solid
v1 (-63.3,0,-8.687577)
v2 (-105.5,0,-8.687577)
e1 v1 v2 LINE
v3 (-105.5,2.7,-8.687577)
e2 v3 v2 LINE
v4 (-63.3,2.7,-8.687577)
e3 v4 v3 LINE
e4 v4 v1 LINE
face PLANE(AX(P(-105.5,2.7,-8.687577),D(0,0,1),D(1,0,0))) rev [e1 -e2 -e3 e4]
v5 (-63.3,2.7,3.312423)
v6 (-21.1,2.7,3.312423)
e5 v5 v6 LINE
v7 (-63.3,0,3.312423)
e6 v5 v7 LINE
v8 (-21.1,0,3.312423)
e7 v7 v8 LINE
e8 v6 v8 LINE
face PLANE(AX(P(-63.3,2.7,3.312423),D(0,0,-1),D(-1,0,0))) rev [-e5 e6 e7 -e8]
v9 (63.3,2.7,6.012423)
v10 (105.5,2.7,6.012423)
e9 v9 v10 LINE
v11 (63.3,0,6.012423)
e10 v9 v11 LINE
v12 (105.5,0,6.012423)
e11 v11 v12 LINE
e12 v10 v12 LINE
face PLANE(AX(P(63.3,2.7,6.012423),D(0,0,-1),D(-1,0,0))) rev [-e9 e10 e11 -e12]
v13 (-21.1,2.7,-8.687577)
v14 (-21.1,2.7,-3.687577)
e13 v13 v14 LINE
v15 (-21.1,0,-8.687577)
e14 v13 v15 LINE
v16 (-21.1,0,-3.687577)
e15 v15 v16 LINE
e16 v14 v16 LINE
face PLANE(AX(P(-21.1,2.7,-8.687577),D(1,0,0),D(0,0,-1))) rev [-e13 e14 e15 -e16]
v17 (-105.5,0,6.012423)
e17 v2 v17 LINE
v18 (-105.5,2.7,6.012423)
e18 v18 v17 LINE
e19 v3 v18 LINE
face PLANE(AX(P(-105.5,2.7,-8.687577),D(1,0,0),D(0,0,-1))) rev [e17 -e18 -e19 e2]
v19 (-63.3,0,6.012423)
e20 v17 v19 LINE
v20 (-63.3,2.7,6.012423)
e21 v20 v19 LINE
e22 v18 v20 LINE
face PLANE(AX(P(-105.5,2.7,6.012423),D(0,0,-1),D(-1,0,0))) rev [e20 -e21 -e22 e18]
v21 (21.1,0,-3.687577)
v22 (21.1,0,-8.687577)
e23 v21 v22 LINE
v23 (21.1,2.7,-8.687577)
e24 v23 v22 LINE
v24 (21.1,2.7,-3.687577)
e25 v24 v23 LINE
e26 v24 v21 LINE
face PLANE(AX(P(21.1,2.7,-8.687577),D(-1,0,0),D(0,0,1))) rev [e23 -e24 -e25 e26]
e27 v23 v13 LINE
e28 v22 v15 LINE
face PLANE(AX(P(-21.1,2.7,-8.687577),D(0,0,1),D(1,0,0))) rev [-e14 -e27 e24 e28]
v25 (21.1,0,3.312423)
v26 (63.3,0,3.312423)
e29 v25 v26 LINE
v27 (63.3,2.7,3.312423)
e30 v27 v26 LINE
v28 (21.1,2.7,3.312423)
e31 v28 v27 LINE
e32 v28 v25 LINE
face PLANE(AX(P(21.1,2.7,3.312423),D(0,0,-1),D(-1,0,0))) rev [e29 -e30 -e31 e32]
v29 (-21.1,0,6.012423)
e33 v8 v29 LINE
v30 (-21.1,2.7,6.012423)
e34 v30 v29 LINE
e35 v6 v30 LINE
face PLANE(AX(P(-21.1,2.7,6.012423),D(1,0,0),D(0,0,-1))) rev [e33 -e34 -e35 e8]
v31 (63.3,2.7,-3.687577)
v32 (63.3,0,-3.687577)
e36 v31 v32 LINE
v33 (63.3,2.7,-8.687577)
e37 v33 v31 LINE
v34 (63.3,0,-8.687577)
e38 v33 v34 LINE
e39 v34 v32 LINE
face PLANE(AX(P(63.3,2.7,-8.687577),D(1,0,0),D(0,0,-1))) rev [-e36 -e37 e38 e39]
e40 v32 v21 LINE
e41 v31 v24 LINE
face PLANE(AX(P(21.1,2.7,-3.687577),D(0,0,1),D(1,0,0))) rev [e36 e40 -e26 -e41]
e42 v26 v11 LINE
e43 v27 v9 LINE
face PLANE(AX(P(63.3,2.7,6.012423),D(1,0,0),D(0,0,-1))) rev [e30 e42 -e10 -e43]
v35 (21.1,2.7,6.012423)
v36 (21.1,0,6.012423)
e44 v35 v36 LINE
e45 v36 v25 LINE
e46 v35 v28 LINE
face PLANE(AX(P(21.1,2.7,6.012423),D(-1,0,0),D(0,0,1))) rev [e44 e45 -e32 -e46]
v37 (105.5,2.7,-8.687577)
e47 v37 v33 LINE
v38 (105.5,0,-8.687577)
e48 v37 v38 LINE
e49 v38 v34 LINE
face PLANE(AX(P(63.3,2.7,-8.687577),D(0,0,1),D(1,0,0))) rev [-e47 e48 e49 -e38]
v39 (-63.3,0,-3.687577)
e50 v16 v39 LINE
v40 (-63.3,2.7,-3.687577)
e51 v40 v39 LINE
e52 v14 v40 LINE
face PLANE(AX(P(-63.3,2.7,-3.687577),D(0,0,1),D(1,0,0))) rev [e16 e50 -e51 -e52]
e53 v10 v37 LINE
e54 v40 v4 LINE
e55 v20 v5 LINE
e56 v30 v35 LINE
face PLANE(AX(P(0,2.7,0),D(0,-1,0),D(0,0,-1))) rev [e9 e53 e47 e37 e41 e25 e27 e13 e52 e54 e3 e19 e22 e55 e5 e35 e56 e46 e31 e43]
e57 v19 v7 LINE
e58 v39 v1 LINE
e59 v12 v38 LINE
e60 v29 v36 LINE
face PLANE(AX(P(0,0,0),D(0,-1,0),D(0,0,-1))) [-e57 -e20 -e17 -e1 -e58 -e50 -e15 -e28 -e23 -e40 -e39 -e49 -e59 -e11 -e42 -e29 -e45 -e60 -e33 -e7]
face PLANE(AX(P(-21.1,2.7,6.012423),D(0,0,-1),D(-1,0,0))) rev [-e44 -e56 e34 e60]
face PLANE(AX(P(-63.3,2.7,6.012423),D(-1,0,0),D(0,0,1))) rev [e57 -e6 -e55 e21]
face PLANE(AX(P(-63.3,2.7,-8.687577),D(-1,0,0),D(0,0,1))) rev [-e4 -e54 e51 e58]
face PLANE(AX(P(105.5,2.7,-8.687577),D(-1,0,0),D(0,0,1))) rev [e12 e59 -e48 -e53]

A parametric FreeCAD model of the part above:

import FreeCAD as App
import Part
import Sketcher
from FreeCAD import Vector
Q = App.Units.Quantity

doc = App.newDocument("Part")
body = doc.addObject("PartDesign::Body", "Body")

sketch1 = doc.addObject("Sketcher::SketchObject", "Sketch")
body.addObject(sketch1)
sketch1.AttachmentSupport = (doc.XZ_Plane, [""])
sketch1.MapMode = "FlatFace"
sketch1.addGeometry(Part.LineSegment(Vector(-21.1, -3.7, 0), Vector(-63.3, -3.7, 0)), False)
sketch1.addGeometry(Part.LineSegment(Vector(-63.3, -3.7, 0), Vector(-63.3, -8.7, 0)), False)
sketch1.addGeometry(Part.LineSegment(Vector(-63.3, -8.7, 0), Vector(-105.5, -8.7, 0)), False)
sketch1.addGeometry(Part.LineSegment(Vector(-105.5, -8.7, 0), Vector(-105.5, 6, 0)), False)
sketch1.addGeometry(Part.LineSegment(Vector(-105.5, 6, 0), Vector(-63.3, 6, 0)), False)
sketch1.addGeometry(Part.LineSegment(Vector(-63.3, 6, 0), Vector(-63.3, 3.3, 0)), False)
sketch1.addGeometry(Part.LineSegment(Vector(-63.3, 3.3, 0), Vector(-21.1, 3.3, 0)), False)
sketch1.addGeometry(Part.LineSegment(Vector(-21.1, 3.3, 0), Vector(-21.1, 6, 0)), False)
sketch1.addGeometry(Part.LineSegment(Vector(-21.1, 6, 0), Vector(21.1, 6, 0)), False)
sketch1.addGeometry(Part.LineSegment(Vector(21.1, 6, 0), Vector(21.1, 3.3, 0)), False)
sketch1.addGeometry(Part.LineSegment(Vector(21.1, 3.3, 0), Vector(63.3, 3.3, 0)), False)
sketch1.addGeometry(Part.LineSegment(Vector(63.3, 3.3, 0), Vector(63.3, 6, 0)), False)
sketch1.addGeometry(Part.LineSegment(Vector(63.3, 6, 0), Vector(105.5, 6, 0)), False)
sketch1.addGeometry(Part.LineSegment(Vector(105.5, 6, 0), Vector(105.5, -8.7, 0)), False)
sketch1.addGeometry(Part.LineSegment(Vector(105.5, -8.7, 0), Vector(63.3, -8.7, 0)), False)
sketch1.addGeometry(Part.LineSegment(Vector(63.3, -8.7, 0), Vector(63.3, -3.7, 0)), False)
sketch1.addGeometry(Part.LineSegment(Vector(63.3, -3.7, 0), Vector(21.1, -3.7, 0)), False)
sketch1.addGeometry(Part.LineSegment(Vector(21.1, -3.7, 0), Vector(21.1, -8.7, 0)), False)
sketch1.addGeometry(Part.LineSegment(Vector(21.1, -8.7, 0), Vector(-21.1, -8.7, 0)), False)
sketch1.addGeometry(Part.LineSegment(Vector(-21.1, -8.7, 0), Vector(-21.1, -3.7, 0)), False)
sketch1.addConstraint(Sketcher.Constraint("Coincident", 0, 2, 1, 1))
sketch1.addConstraint(Sketcher.Constraint("Coincident", 1, 2, 2, 1))
sketch1.addConstraint(Sketcher.Constraint("Coincident", 2, 2, 3, 1))
sketch1.addConstraint(Sketcher.Constraint("Coincident", 3, 2, 4, 1))
sketch1.addConstraint(Sketcher.Constraint("Coincident", 4, 2, 5, 1))
sketch1.addConstraint(Sketcher.Constraint("Coincident", 5, 2, 6, 1))
sketch1.addConstraint(Sketcher.Constraint("Coincident", 6, 2, 7, 1))
sketch1.addConstraint(Sketcher.Constraint("Coincident", 7, 2, 8, 1))
sketch1.addConstraint(Sketcher.Constraint("Coincident", 8, 2, 9, 1))
sketch1.addConstraint(Sketcher.Constraint("Coincident", 9, 2, 10, 1))
sketch1.addConstraint(Sketcher.Constraint("Coincident", 10, 2, 11, 1))
sketch1.addConstraint(Sketcher.Constraint("Coincident", 11, 2, 12, 1))
sketch1.addConstraint(Sketcher.Constraint("Coincident", 12, 2, 13, 1))
sketch1.addConstraint(Sketcher.Constraint("Coincident", 13, 2, 14, 1))
sketch1.addConstraint(Sketcher.Constraint("Coincident", 14, 2, 15, 1))
sketch1.addConstraint(Sketcher.Constraint("Coincident", 15, 2, 16, 1))
sketch1.addConstraint(Sketcher.Constraint("Coincident", 16, 2, 17, 1))
sketch1.addConstraint(Sketcher.Constraint("Coincident", 17, 2, 18, 1))
sketch1.addConstraint(Sketcher.Constraint("Coincident", 18, 2, 19, 1))
sketch1.addConstraint(Sketcher.Constraint("Coincident", 19, 2, 0, 1))
sketch1.addConstraint(Sketcher.Constraint("Horizontal", 0))
sketch1.addConstraint(Sketcher.Constraint("Vertical", 1))
sketch1.addConstraint(Sketcher.Constraint("Horizontal", 2))
sketch1.addConstraint(Sketcher.Constraint("Vertical", 3))
sketch1.addConstraint(Sketcher.Constraint("Horizontal", 4))
sketch1.addConstraint(Sketcher.Constraint("Vertical", 5))
sketch1.addConstraint(Sketcher.Constraint("Horizontal", 6))
sketch1.addConstraint(Sketcher.Constraint("Vertical", 7))
sketch1.addConstraint(Sketcher.Constraint("Horizontal", 8))
sketch1.addConstraint(Sketcher.Constraint("Vertical", 9))
sketch1.addConstraint(Sketcher.Constraint("Horizontal", 10))
sketch1.addConstraint(Sketcher.Constraint("Vertical", 11))
sketch1.addConstraint(Sketcher.Constraint("Horizontal", 12))
sketch1.addConstraint(Sketcher.Constraint("Vertical", 13))
sketch1.addConstraint(Sketcher.Constraint("Horizontal", 14))
sketch1.addConstraint(Sketcher.Constraint("Vertical", 15))
sketch1.addConstraint(Sketcher.Constraint("Horizontal", 16))
sketch1.addConstraint(Sketcher.Constraint("Vertical", 17))
sketch1.addConstraint(Sketcher.Constraint("Horizontal", 18))
sketch1.addConstraint(Sketcher.Constraint("Vertical", 19))
sketch1.addConstraint(Sketcher.Constraint("Symmetric", 6, 2, 9, 2, -2))
sketch1.addConstraint(Sketcher.Constraint("Symmetric", 4, 2, 11, 2, -2))
sketch1.addConstraint(Sketcher.Constraint("Symmetric", 2, 2, 13, 2, -2))
sketch1.addConstraint(Sketcher.Constraint("Symmetric", 0, 2, 15, 2, -2))
sketch1.addConstraint(Sketcher.Constraint("Horizontal", 4, 2, 7, 2))
sketch1.addConstraint(Sketcher.Constraint("Horizontal", 14, 2, 17, 2))
sketch1.addConstraint(Sketcher.Constraint("Vertical", 1, 2, 4, 2))
sketch1.addConstraint(Sketcher.Constraint("Vertical", 9, 2, 16, 2))
sketch1.addConstraint(Sketcher.Constraint("Vertical", 7, 2, 18, 2))
sketch1.addConstraint(Sketcher.Constraint("Equal", 0, 2))
sketch1.addConstraint(Sketcher.Constraint("Equal", 6, 8))
sketch1.addConstraint(Sketcher.Constraint("DistanceY", 1, 2, 1, 1, Q("5 mm")))
sketch1.addConstraint(Sketcher.Constraint("DistanceX", 0, 2, 0, 1, Q("42.2 mm")))
sketch1.addConstraint(Sketcher.Constraint("DistanceY", 3, 1, 3, 2, Q("14.7 mm")))
sketch1.addConstraint(Sketcher.Constraint("DistanceY", 5, 2, 5, 1, Q("2.7 mm")))
sketch1.addConstraint(Sketcher.Constraint("DistanceY", 0, 2, -1, 1, Q("3.687577 mm")))
pad1 = doc.addObject("PartDesign::Pad", "Pad")
body.addObject(pad1)
pad1.Profile = sketch1
pad1.Length = 2.7
pad1.Reversed = True

doc.recompute()
